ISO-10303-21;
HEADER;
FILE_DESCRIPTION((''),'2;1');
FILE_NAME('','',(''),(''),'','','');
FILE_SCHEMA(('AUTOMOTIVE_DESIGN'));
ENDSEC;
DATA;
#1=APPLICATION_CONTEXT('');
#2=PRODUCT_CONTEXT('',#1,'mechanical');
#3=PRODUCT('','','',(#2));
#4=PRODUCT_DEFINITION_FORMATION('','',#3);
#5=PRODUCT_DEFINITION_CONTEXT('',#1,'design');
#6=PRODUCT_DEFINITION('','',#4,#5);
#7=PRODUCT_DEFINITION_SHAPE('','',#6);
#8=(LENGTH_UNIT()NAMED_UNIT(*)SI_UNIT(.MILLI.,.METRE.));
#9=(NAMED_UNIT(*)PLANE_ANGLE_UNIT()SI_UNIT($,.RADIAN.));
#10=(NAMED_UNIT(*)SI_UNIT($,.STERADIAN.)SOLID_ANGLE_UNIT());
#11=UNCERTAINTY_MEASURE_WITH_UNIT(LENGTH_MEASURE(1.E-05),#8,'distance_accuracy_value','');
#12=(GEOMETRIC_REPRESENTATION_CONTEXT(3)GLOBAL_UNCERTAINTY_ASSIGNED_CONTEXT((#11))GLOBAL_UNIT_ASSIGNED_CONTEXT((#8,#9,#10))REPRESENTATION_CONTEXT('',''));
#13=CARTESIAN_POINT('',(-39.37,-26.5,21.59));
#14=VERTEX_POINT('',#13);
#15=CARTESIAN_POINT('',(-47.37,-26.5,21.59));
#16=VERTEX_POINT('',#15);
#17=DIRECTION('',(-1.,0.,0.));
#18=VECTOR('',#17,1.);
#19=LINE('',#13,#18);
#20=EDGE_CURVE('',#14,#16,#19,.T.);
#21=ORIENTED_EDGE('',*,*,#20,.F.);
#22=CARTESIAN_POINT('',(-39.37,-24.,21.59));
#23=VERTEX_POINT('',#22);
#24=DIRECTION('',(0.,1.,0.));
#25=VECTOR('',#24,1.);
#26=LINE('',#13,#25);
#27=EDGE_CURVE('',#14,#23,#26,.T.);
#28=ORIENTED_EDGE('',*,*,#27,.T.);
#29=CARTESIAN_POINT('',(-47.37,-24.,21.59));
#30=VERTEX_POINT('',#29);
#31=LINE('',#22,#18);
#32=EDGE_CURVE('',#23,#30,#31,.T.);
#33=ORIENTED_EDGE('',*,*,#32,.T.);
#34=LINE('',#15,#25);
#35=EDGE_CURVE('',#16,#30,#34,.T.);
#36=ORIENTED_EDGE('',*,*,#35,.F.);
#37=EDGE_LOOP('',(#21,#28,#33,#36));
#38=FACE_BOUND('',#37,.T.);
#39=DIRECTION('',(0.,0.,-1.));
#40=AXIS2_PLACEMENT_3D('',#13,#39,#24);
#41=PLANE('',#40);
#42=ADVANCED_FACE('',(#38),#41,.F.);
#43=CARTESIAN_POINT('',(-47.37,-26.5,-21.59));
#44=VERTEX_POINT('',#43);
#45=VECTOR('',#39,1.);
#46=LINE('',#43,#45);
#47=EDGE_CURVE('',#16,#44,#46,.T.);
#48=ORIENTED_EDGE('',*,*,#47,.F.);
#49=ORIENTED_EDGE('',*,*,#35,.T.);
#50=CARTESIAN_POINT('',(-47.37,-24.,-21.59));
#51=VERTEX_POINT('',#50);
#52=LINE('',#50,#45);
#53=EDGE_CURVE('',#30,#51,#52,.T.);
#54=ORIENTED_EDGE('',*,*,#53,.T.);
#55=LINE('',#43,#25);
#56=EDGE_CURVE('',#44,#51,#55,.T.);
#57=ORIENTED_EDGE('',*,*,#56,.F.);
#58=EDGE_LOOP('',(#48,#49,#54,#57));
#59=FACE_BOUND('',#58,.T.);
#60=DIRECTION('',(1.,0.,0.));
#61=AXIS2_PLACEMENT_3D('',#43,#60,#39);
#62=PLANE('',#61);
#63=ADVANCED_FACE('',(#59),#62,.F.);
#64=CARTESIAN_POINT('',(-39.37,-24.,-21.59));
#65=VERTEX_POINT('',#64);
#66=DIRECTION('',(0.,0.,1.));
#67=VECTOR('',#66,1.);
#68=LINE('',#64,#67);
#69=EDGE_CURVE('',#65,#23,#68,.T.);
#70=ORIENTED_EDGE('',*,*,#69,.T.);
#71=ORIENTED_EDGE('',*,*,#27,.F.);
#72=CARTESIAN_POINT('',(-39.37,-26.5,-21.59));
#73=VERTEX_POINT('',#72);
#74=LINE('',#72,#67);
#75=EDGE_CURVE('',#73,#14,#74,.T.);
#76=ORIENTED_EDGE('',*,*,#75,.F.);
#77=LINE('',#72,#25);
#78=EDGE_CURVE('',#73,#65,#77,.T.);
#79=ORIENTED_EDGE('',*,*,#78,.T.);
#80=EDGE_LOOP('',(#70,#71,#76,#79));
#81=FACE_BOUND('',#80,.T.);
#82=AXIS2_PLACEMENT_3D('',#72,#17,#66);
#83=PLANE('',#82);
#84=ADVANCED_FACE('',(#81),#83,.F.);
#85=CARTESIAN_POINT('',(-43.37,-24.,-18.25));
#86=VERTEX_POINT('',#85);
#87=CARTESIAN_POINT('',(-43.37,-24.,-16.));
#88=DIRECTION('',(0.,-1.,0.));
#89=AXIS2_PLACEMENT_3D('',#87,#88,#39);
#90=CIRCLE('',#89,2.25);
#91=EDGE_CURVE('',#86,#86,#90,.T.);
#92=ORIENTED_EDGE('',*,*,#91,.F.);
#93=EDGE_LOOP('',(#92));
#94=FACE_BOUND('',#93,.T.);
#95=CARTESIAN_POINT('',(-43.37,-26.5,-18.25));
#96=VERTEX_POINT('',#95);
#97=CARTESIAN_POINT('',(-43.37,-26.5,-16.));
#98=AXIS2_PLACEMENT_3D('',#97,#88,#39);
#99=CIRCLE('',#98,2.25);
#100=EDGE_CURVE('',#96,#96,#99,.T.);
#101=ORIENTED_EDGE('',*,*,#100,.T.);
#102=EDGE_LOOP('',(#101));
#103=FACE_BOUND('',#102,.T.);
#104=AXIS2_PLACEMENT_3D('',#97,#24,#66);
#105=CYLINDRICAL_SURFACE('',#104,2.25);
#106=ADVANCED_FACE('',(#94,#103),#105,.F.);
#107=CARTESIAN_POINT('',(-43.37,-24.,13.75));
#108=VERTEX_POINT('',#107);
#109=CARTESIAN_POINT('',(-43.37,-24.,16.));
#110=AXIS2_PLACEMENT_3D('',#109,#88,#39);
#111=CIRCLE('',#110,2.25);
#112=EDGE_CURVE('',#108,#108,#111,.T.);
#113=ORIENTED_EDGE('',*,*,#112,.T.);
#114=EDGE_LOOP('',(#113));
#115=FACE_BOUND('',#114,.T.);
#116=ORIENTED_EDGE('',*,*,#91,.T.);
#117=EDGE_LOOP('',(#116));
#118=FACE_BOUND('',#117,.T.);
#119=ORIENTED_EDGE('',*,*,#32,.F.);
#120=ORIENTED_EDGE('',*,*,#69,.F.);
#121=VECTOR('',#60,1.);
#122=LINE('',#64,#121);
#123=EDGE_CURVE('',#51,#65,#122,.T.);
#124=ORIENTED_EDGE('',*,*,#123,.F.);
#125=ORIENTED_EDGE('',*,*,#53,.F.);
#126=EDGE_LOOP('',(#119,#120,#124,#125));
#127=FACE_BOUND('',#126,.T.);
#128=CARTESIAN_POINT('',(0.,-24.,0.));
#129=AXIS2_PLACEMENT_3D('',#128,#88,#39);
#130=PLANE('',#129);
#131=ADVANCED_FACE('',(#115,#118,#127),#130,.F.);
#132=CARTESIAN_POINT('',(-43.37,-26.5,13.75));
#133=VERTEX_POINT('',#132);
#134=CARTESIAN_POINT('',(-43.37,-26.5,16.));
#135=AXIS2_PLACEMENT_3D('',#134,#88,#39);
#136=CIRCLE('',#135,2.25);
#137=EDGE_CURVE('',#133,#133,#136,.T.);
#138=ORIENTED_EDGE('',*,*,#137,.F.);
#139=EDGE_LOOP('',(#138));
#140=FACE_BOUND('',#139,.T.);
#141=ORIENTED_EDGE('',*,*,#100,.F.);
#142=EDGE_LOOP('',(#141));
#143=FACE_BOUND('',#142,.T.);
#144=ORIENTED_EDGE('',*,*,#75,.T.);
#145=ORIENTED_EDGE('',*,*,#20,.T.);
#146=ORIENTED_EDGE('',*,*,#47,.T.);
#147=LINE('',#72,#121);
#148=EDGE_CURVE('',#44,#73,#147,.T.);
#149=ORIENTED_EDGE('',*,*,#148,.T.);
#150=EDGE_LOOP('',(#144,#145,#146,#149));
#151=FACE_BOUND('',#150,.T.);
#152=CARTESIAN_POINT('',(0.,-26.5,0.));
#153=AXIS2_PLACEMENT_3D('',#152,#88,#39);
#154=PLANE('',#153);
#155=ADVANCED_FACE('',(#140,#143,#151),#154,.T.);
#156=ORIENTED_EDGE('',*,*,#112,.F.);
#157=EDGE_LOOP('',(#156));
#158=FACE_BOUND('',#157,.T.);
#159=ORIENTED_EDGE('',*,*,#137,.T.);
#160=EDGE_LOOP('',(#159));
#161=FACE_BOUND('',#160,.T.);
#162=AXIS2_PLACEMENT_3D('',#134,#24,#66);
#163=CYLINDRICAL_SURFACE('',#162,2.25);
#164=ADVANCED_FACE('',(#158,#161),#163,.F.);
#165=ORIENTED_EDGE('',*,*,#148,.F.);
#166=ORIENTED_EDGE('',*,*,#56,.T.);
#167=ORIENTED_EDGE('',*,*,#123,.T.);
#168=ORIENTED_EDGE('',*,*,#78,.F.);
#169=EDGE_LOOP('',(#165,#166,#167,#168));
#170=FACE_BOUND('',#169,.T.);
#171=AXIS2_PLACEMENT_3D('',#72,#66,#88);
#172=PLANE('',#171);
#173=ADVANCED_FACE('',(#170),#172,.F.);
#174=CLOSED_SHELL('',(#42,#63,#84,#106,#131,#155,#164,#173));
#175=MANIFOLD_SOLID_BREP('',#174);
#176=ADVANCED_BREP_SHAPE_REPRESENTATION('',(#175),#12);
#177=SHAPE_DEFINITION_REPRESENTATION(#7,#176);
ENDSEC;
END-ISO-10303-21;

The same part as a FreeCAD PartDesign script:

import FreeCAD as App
import Part
import Sketcher

V = App.Vector
Q = App.Units.Quantity


def add_polygon(sketch, points):
    """Adds a closed chain of lines whose ends are joined by coincident constraints."""
    first, n = sketch.GeometryCount, len(points)
    for a, b in zip(points, points[1:] + points[:1]):
        sketch.addGeometry(Part.LineSegment(App.Vector(*a, 0), App.Vector(*b, 0)), False)
    for i in range(n):
        sketch.addConstraint(Sketcher.Constraint("Coincident", first + i, 2, first + (i + 1) % n, 1))

doc = App.newDocument("Part")
body = doc.addObject("PartDesign::Body", "Body")

sketch1 = doc.addObject("Sketcher::SketchObject", "Sketch")
body.addObject(sketch1)
sketch1.AttachmentSupport = (doc.XZ_Plane, [""])
sketch1.MapMode = "FlatFace"
sketch1.AttachmentOffset = App.Placement(V(0, 0, 24), App.Rotation())
add_polygon(sketch1, [(-39.4, -21.6), (-39.4, 21.6), (-47.4, 21.6), (-47.4, -21.6)])
sketch1.addGeometry(Part.Circle(V(-43.4, 16, 0), V(0, 0, 1), 2.2), False)
sketch1.addGeometry(Part.Circle(V(-43.4, -16, 0), V(0, 0, 1), 2.2), False)
sketch1.addConstraint([
    Sketcher.Constraint("Vertical", 0),
    Sketcher.Constraint("Horizontal", 1),
    Sketcher.Constraint("Vertical", 2),
    Sketcher.Constraint("Horizontal", 3),
    Sketcher.Constraint("Equal", 4, 5),
    Sketcher.Constraint("Symmetric", 4, 3, 5, 3, -1),
    Sketcher.Constraint("Diameter", 4, Q("4.5 mm")),
    Sketcher.Constraint("DistanceX", 1, 2, 1, 1, Q("8 mm")),
    Sketcher.Constraint("DistanceY", -1, 1, 4, 3, Q("16 mm")),
    Sketcher.Constraint("DistanceX", 4, 3, 0, 2, Q("4 mm")),
    Sketcher.Constraint("DistanceY", 0, 1, 0, 2, Q("43.18 mm")),
    Sketcher.Constraint("DistanceX", 4, 3, -1, 1, Q("43.37 mm")),
    Sketcher.Constraint("DistanceY", -1, 1, 0, 2, Q("21.59 mm")),
])
pad1 = doc.addObject("PartDesign::Pad", "Pad")
body.addObject(pad1)
pad1.Profile = sketch1
pad1.Length = 2.5

doc.recompute()
